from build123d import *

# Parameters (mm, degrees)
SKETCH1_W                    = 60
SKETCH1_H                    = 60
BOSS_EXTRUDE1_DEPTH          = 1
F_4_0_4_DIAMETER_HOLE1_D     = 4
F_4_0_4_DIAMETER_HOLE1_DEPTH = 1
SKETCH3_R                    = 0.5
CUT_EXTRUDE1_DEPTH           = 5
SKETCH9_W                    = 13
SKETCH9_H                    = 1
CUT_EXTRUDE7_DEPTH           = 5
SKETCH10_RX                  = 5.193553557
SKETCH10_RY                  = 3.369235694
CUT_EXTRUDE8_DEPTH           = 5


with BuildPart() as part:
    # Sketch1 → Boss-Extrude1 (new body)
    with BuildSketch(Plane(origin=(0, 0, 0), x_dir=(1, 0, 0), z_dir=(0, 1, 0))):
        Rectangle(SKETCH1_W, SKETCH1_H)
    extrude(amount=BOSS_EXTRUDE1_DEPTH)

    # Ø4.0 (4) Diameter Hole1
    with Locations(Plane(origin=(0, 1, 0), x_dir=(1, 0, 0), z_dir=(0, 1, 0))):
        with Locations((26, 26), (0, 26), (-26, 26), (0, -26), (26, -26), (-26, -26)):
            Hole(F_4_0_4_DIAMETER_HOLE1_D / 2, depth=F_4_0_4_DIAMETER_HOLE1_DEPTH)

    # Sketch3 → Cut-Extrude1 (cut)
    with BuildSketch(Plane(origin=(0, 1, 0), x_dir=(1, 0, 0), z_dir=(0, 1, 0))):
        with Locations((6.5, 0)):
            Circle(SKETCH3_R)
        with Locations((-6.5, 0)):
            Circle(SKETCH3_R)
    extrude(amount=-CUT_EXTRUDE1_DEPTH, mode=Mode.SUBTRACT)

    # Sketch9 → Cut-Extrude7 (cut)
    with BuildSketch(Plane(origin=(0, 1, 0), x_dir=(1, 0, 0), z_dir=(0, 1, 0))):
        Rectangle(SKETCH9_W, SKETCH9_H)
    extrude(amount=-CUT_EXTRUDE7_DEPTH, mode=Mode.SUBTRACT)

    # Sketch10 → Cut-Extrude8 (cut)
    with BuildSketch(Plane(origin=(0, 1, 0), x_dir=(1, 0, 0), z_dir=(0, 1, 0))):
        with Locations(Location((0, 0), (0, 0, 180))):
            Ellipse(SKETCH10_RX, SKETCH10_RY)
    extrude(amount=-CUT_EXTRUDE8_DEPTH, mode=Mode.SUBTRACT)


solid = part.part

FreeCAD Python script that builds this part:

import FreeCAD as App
import Part
import Sketcher


def add_polygon(sketch, points):
    """Adds a closed chain of lines whose ends are joined by coincident constraints."""
    first, n = sketch.GeometryCount, len(points)
    for a, b in zip(points, points[1:] + points[:1]):
        sketch.addGeometry(Part.LineSegment(App.Vector(*a, 0), App.Vector(*b, 0)), False)
    for i in range(n):
        sketch.addConstraint(Sketcher.Constraint("Coincident", first + i, 2, first + (i + 1) % n, 1))

doc = App.newDocument("Part")
body = doc.addObject("PartDesign::Body", "Body")

sketch1 = body.newObject("Sketcher::SketchObject", "Sketch")
sketch1.AttachmentSupport = (doc.getObject("XZ_Plane"), [""])
sketch1.MapMode = "FlatFace"
add_polygon(sketch1, [(-30, -30), (-30, 30), (30, 30), (30, -30)])
sketch1.addConstraint([
    Sketcher.Constraint("Vertical", 0),
    Sketcher.Constraint("Horizontal", 1),
    Sketcher.Constraint("Vertical", 2),
    Sketcher.Constraint("Horizontal", 3),
    Sketcher.Constraint("Symmetric", 0, 2, 2, 2, -1, 1),
    Sketcher.Constraint("Equal", 3, 0),
    Sketcher.Constraint("DistanceX", 1, 1, 1, 2, 60.0),
])
pad1 = body.newObject("PartDesign::Pad", "Pad")
pad1.Profile = sketch1
pad1.Length = 1
pad1.Reversed = True

sketch2 = body.newObject("Sketcher::SketchObject", "Sketch001")
sketch2.AttachmentSupport = (doc.getObject("XZ_Plane"), [""])
sketch2.MapMode = "FlatFace"
sketch2.AttachmentOffset = App.Placement(App.Vector(0, 0, -1), App.Rotation())
sketch2.addGeometry([
    Part.Circle(App.Vector(26, -26, 0), App.Vector(0, 0, 1), 2),
    Part.Circle(App.Vector(0, -26, 0), App.Vector(0, 0, 1), 2),
    Part.Circle(App.Vector(-26, -26, 0), App.Vector(0, 0, 1), 2),
    Part.Circle(App.Vector(0, 26, 0), App.Vector(0, 0, 1), 2),
    Part.Circle(App.Vector(26, 26, 0), App.Vector(0, 0, 1), 2),
    Part.Circle(App.Vector(-26, 26, 0), App.Vector(0, 0, 1), 2),
], False)
sketch2.addConstraint([
    Sketcher.Constraint("Equal", 0, 1),
    Sketcher.Constraint("Equal", 1, 2),
    Sketcher.Constraint("Equal", 2, 3),
    Sketcher.Constraint("Equal", 3, 4),
    Sketcher.Constraint("Equal", 4, 5),
    Sketcher.Constraint("Symmetric", 1, 3, 3, 3, -1, 1),
    Sketcher.Constraint("Symmetric", 2, 3, 4, 3, -1, 1),
    Sketcher.Constraint("Symmetric", 0, 3, 5, 3, -1, 1),
    Sketcher.Constraint("Symmetric", 0, 3, 2, 3, -2),
    Sketcher.Constraint("PointOnObject", 1, 3, -2),
    Sketcher.Constraint("Horizontal", 0, 3, 1, 3),
    Sketcher.Constraint("Diameter", 0, 4.0),
    Sketcher.Constraint("DistanceX", -1, 1, 0, 3, 26.0),
    Sketcher.Constraint("DistanceY", 0, 3, -1, 1, 26.0),
])
doc.recompute()
hole = body.newObject("PartDesign::Hole", "Hole")
hole.Profile = sketch2
hole.ThreadType = "None"
hole.Diameter = 4
hole.DepthType = "Dimension"
hole.Depth = 1
hole.DrillPoint = "Flat"
hole.Reversed = True

sketch3 = body.newObject("Sketcher::SketchObject", "Sketch002")
sketch3.AttachmentSupport = (doc.getObject("XZ_Plane"), [""])
sketch3.MapMode = "FlatFace"
sketch3.AttachmentOffset = App.Placement(App.Vector(0, 0, -1), App.Rotation())
sketch3.addGeometry([
    Part.Circle(App.Vector(6.5, 0, 0), App.Vector(0, 0, 1), 0.5),
    Part.Circle(App.Vector(-6.5, 0, 0), App.Vector(0, 0, 1), 0.5),
], False)
sketch3.addConstraint([
    Sketcher.Constraint("Equal", 0, 1),
    Sketcher.Constraint("Symmetric", 0, 3, 1, 3, -1, 1),
    Sketcher.Constraint("PointOnObject", 0, 3, -1),
    Sketcher.Constraint("Diameter", 0, 1.0),
    Sketcher.Constraint("DistanceX", 1, 3, 0, 3, 13.0),
])
pocket1 = body.newObject("PartDesign::Pocket", "Pocket")
pocket1.Profile = sketch3
pocket1.Length = 5
pocket1.Reversed = True

sketch4 = body.newObject("Sketcher::SketchObject", "Sketch003")
sketch4.AttachmentSupport = (doc.getObject("XZ_Plane"), [""])
sketch4.MapMode = "FlatFace"
sketch4.AttachmentOffset = App.Placement(App.Vector(0, 0, -1), App.Rotation())
add_polygon(sketch4, [(-6.5, -0.5), (-6.5, 0.5), (6.5, 0.5), (6.5, -0.5)])
sketch4.addConstraint([
    Sketcher.Constraint("Vertical", 0),
    Sketcher.Constraint("Horizontal", 1),
    Sketcher.Constraint("Vertical", 2),
    Sketcher.Constraint("Horizontal", 3),
    Sketcher.Constraint("Symmetric", 0, 2, 2, 2, -1, 1),
    Sketcher.Constraint("DistanceX", 1, 1, 1, 2, 13.0),
    Sketcher.Constraint("DistanceY", 0, 1, 0, 2, 1.0),
])
pocket2 = body.newObject("PartDesign::Pocket", "Pocket001")
pocket2.Profile = sketch4
pocket2.Length = 5
pocket2.Reversed = True

sketch5 = body.newObject("Sketcher::SketchObject", "Sketch004")
sketch5.AttachmentSupport = (doc.getObject("XZ_Plane"), [""])
sketch5.MapMode = "FlatFace"
sketch5.AttachmentOffset = App.Placement(App.Vector(0, 0, -1), App.Rotation())
sketch5.addGeometry(Part.Ellipse(App.Vector(-5.193554, 0, 0), App.Vector(0, -3.369236, 0), App.Vector(0, 0, 0)), False)
sketch5.addConstraint(Sketcher.Constraint("Block", 0))
pocket3 = body.newObject("PartDesign::Pocket", "Pocket002")
pocket3.Profile = sketch5
pocket3.Length = 5
pocket3.Reversed = True

doc.recompute()
